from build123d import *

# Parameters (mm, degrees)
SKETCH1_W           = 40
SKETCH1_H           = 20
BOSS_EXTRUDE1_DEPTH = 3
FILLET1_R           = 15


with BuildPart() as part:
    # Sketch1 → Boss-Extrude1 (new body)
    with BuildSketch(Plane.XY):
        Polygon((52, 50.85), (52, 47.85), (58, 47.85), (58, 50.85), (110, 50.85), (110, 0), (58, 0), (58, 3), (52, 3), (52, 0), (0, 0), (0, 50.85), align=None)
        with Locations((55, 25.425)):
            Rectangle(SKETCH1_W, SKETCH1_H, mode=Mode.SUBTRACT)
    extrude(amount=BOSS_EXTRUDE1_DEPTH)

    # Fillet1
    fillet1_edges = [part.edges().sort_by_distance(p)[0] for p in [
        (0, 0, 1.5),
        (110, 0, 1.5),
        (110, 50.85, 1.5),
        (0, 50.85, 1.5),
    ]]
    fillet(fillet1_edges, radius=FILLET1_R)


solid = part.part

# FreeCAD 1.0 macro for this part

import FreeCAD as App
import Part
import Sketcher

V = App.Vector
Q = App.Units.Quantity


def edges_at(feature, points):
    """Names of the edges that pass closest to the given points."""
    edges = feature.Shape.Edges
    near = lambda p: min(range(len(edges)), key=lambda i: edges[i].distToShape(Part.Vertex(*p))[0])
    return sorted({f"Edge{near(p) + 1}" for p in points})

doc = App.newDocument("Part")
body = doc.addObject("PartDesign::Body", "Body")

# Sketch on XY plane
sketch1 = body.newObject("Sketcher::SketchObject", "Sketch")
sketch1.AttachmentSupport = (doc.getObject("XY_Plane"), [""])
sketch1.MapMode = "FlatFace"
sketch1.addGeometry(Part.LineSegment(V(52, 47.9, 0), V(52, 50.9, 0)), False)
sketch1.addGeometry(Part.LineSegment(V(52, 50.9, 0), V(0, 50.9, 0)), False)
sketch1.addGeometry(Part.LineSegment(V(0, 50.9, 0), V(0, 0, 0)), False)
sketch1.addGeometry(Part.LineSegment(V(0, 0, 0), V(52, 0, 0)), False)
sketch1.addGeometry(Part.LineSegment(V(52, 0, 0), V(52, 3, 0)), False)
sketch1.addGeometry(Part.LineSegment(V(52, 3, 0), V(58, 3, 0)), False)
sketch1.addGeometry(Part.LineSegment(V(58, 3, 0), V(58, 0, 0)), False)
sketch1.addGeometry(Part.LineSegment(V(58, 0, 0), V(110, 0, 0)), False)
sketch1.addGeometry(Part.LineSegment(V(110, 0, 0), V(110, 50.9, 0)), False)
sketch1.addGeometry(Part.LineSegment(V(110, 50.9, 0), V(58, 50.9, 0)), False)
sketch1.addGeometry(Part.LineSegment(V(58, 50.9, 0), V(58, 47.9, 0)), False)
sketch1.addGeometry(Part.LineSegment(V(58, 47.9, 0), V(52, 47.9, 0)), False)
sketch1.addGeometry(Part.LineSegment(V(35, 15.4, 0), V(35, 35.4, 0)), False)
sketch1.addGeometry(Part.LineSegment(V(35, 35.4, 0), V(75, 35.4, 0)), False)
sketch1.addGeometry(Part.LineSegment(V(75, 35.4, 0), V(75, 15.4, 0)), False)
sketch1.addGeometry(Part.LineSegment(V(75, 15.4, 0), V(35, 15.4, 0)), False)
sketch1.addConstraint(Sketcher.Constraint("Coincident", 0, 2, 1, 1))
sketch1.addConstraint(Sketcher.Constraint("Coincident", 1, 2, 2, 1))
sketch1.addConstraint(Sketcher.Constraint("Coincident", 2, 2, 3, 1))
sketch1.addConstraint(Sketcher.Constraint("Coincident", 3, 2, 4, 1))
sketch1.addConstraint(Sketcher.Constraint("Coincident", 4, 2, 5, 1))
sketch1.addConstraint(Sketcher.Constraint("Coincident", 5, 2, 6, 1))
sketch1.addConstraint(Sketcher.Constraint("Coincident", 6, 2, 7, 1))
sketch1.addConstraint(Sketcher.Constraint("Coincident", 7, 2, 8, 1))
sketch1.addConstraint(Sketcher.Constraint("Coincident", 8, 2, 9, 1))
sketch1.addConstraint(Sketcher.Constraint("Coincident", 9, 2, 10, 1))
sketch1.addConstraint(Sketcher.Constraint("Coincident", 10, 2, 11, 1))
sketch1.addConstraint(Sketcher.Constraint("Coincident", 11, 2, 0, 1))
sketch1.addConstraint(Sketcher.Constraint("Coincident", 12, 2, 13, 1))
sketch1.addConstraint(Sketcher.Constraint("Coincident", 13, 2, 14, 1))
sketch1.addConstraint(Sketcher.Constraint("Coincident", 14, 2, 15, 1))
sketch1.addConstraint(Sketcher.Constraint("Coincident", 15, 2, 12, 1))
sketch1.addConstraint(Sketcher.Constraint("Vertical", 0))
sketch1.addConstraint(Sketcher.Constraint("Horizontal", 1))
sketch1.addConstraint(Sketcher.Constraint("Vertical", 2))
sketch1.addConstraint(Sketcher.Constraint("Horizontal", 3))
sketch1.addConstraint(Sketcher.Constraint("Vertical", 4))
sketch1.addConstraint(Sketcher.Constraint("Horizontal", 5))
sketch1.addConstraint(Sketcher.Constraint("Vertical", 6))
sketch1.addConstraint(Sketcher.Constraint("Horizontal", 7))
sketch1.addConstraint(Sketcher.Constraint("Vertical", 8))
sketch1.addConstraint(Sketcher.Constraint("Horizontal", 9))
sketch1.addConstraint(Sketcher.Constraint("Vertical", 10))
sketch1.addConstraint(Sketcher.Constraint("Horizontal", 11))
sketch1.addConstraint(Sketcher.Constraint("Vertical", 12))
sketch1.addConstraint(Sketcher.Constraint("Horizontal", 13))
sketch1.addConstraint(Sketcher.Constraint("Vertical", 14))
sketch1.addConstraint(Sketcher.Constraint("Horizontal", 15))
sketch1.addConstraint(Sketcher.Constraint("Coincident", 2, 2, -1, 1))
sketch1.addConstraint(Sketcher.Constraint("PointOnObject", 6, 2, -1))
sketch1.addConstraint(Sketcher.Constraint("Horizontal", 1, 2, 8, 2))
sketch1.addConstraint(Sketcher.Constraint("Vertical", 0, 2, 3, 2))
sketch1.addConstraint(Sketcher.Constraint("Vertical", 6, 2, 9, 2))
sketch1.addConstraint(Sketcher.Constraint("Equal", 3, 7))
sketch1.addConstraint(Sketcher.Constraint("Equal", 0, 4))
sketch1.addConstraint(Sketcher.Constraint("DistanceX", 1, 2, 1, 1, Q("52 mm")))
sketch1.addConstraint(Sketcher.Constraint("DistanceX", 5, 1, 5, 2, Q("6 mm")))
sketch1.addConstraint(Sketcher.Constraint("DistanceX", 13, 1, 13, 2, Q("40 mm")))
sketch1.addConstraint(Sketcher.Constraint("DistanceY", 0, 1, 0, 2, Q("3 mm")))
sketch1.addConstraint(Sketcher.Constraint("DistanceY", 12, 1, 12, 2, Q("20 mm")))
sketch1.addConstraint(Sketcher.Constraint("DistanceX", -1, 1, 12, 2, Q("35 mm")))
sketch1.addConstraint(Sketcher.Constraint("DistanceY", 2, 2, 2, 1, Q("50.85 mm")))
sketch1.addConstraint(Sketcher.Constraint("DistanceY", -1, 1, 12, 2, Q("35.425 mm")))
pad1 = body.newObject("PartDesign::Pad", "Pad")
pad1.Profile = sketch1
pad1.Length = 3
doc.recompute()

fillet = body.newObject("PartDesign::Fillet", "Fillet")
fillet.Base = (pad1, edges_at(pad1, [
    (0, 0, 1.5),
    (110, 0, 1.5),
    (110, 50.85, 1.5),
    (0, 50.85, 1.5),
]))
fillet.Radius = 15

doc.recompute()
